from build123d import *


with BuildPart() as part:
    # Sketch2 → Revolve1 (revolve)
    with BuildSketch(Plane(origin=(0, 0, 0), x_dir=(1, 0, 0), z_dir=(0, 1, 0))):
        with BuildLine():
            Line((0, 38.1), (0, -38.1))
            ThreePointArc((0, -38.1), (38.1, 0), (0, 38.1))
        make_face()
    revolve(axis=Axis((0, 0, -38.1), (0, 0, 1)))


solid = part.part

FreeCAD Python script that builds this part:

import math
import FreeCAD as App
import Part
import Sketcher
from FreeCAD import Vector
Q = App.Units.Quantity

doc = App.newDocument("Part")
body = doc.addObject("PartDesign::Body", "Body")

# Sketch on XZ plane
sketch1 = body.newObject("Sketcher::SketchObject", "Sketch")
sketch1.AttachmentSupport = (doc.getObject("XZ_Plane"), [""])
sketch1.MapMode = "FlatFace"
sketch1.addGeometry([
    Part.LineSegment(Vector(0, -38, 0), Vector(0, 38, 0)),
    Part.ArcOfCircle(Part.Circle(Vector(0, 0, 0), Vector(0, 0, 1), 38), math.radians(-90), math.radians(90)),
], False)
sketch1.addConstraint([
    Sketcher.Constraint("Coincident", 0, 1, 1, 1),
    Sketcher.Constraint("Coincident", 1, 2, 0, 2),
    Sketcher.Constraint("Vertical", 0),
    Sketcher.Constraint("Coincident", 1, 3, -1, 1),
    Sketcher.Constraint("PointOnObject", 0, 1, -2),
    Sketcher.Constraint("Radius", 1, Q("1.5 in")),
])
revolution = body.newObject("PartDesign::Revolution", "Revolution")
revolution.Profile = sketch1
revolution.ReferenceAxis = (sketch1, ["V_Axis"])
revolution.Angle = 360

doc.recompute()
